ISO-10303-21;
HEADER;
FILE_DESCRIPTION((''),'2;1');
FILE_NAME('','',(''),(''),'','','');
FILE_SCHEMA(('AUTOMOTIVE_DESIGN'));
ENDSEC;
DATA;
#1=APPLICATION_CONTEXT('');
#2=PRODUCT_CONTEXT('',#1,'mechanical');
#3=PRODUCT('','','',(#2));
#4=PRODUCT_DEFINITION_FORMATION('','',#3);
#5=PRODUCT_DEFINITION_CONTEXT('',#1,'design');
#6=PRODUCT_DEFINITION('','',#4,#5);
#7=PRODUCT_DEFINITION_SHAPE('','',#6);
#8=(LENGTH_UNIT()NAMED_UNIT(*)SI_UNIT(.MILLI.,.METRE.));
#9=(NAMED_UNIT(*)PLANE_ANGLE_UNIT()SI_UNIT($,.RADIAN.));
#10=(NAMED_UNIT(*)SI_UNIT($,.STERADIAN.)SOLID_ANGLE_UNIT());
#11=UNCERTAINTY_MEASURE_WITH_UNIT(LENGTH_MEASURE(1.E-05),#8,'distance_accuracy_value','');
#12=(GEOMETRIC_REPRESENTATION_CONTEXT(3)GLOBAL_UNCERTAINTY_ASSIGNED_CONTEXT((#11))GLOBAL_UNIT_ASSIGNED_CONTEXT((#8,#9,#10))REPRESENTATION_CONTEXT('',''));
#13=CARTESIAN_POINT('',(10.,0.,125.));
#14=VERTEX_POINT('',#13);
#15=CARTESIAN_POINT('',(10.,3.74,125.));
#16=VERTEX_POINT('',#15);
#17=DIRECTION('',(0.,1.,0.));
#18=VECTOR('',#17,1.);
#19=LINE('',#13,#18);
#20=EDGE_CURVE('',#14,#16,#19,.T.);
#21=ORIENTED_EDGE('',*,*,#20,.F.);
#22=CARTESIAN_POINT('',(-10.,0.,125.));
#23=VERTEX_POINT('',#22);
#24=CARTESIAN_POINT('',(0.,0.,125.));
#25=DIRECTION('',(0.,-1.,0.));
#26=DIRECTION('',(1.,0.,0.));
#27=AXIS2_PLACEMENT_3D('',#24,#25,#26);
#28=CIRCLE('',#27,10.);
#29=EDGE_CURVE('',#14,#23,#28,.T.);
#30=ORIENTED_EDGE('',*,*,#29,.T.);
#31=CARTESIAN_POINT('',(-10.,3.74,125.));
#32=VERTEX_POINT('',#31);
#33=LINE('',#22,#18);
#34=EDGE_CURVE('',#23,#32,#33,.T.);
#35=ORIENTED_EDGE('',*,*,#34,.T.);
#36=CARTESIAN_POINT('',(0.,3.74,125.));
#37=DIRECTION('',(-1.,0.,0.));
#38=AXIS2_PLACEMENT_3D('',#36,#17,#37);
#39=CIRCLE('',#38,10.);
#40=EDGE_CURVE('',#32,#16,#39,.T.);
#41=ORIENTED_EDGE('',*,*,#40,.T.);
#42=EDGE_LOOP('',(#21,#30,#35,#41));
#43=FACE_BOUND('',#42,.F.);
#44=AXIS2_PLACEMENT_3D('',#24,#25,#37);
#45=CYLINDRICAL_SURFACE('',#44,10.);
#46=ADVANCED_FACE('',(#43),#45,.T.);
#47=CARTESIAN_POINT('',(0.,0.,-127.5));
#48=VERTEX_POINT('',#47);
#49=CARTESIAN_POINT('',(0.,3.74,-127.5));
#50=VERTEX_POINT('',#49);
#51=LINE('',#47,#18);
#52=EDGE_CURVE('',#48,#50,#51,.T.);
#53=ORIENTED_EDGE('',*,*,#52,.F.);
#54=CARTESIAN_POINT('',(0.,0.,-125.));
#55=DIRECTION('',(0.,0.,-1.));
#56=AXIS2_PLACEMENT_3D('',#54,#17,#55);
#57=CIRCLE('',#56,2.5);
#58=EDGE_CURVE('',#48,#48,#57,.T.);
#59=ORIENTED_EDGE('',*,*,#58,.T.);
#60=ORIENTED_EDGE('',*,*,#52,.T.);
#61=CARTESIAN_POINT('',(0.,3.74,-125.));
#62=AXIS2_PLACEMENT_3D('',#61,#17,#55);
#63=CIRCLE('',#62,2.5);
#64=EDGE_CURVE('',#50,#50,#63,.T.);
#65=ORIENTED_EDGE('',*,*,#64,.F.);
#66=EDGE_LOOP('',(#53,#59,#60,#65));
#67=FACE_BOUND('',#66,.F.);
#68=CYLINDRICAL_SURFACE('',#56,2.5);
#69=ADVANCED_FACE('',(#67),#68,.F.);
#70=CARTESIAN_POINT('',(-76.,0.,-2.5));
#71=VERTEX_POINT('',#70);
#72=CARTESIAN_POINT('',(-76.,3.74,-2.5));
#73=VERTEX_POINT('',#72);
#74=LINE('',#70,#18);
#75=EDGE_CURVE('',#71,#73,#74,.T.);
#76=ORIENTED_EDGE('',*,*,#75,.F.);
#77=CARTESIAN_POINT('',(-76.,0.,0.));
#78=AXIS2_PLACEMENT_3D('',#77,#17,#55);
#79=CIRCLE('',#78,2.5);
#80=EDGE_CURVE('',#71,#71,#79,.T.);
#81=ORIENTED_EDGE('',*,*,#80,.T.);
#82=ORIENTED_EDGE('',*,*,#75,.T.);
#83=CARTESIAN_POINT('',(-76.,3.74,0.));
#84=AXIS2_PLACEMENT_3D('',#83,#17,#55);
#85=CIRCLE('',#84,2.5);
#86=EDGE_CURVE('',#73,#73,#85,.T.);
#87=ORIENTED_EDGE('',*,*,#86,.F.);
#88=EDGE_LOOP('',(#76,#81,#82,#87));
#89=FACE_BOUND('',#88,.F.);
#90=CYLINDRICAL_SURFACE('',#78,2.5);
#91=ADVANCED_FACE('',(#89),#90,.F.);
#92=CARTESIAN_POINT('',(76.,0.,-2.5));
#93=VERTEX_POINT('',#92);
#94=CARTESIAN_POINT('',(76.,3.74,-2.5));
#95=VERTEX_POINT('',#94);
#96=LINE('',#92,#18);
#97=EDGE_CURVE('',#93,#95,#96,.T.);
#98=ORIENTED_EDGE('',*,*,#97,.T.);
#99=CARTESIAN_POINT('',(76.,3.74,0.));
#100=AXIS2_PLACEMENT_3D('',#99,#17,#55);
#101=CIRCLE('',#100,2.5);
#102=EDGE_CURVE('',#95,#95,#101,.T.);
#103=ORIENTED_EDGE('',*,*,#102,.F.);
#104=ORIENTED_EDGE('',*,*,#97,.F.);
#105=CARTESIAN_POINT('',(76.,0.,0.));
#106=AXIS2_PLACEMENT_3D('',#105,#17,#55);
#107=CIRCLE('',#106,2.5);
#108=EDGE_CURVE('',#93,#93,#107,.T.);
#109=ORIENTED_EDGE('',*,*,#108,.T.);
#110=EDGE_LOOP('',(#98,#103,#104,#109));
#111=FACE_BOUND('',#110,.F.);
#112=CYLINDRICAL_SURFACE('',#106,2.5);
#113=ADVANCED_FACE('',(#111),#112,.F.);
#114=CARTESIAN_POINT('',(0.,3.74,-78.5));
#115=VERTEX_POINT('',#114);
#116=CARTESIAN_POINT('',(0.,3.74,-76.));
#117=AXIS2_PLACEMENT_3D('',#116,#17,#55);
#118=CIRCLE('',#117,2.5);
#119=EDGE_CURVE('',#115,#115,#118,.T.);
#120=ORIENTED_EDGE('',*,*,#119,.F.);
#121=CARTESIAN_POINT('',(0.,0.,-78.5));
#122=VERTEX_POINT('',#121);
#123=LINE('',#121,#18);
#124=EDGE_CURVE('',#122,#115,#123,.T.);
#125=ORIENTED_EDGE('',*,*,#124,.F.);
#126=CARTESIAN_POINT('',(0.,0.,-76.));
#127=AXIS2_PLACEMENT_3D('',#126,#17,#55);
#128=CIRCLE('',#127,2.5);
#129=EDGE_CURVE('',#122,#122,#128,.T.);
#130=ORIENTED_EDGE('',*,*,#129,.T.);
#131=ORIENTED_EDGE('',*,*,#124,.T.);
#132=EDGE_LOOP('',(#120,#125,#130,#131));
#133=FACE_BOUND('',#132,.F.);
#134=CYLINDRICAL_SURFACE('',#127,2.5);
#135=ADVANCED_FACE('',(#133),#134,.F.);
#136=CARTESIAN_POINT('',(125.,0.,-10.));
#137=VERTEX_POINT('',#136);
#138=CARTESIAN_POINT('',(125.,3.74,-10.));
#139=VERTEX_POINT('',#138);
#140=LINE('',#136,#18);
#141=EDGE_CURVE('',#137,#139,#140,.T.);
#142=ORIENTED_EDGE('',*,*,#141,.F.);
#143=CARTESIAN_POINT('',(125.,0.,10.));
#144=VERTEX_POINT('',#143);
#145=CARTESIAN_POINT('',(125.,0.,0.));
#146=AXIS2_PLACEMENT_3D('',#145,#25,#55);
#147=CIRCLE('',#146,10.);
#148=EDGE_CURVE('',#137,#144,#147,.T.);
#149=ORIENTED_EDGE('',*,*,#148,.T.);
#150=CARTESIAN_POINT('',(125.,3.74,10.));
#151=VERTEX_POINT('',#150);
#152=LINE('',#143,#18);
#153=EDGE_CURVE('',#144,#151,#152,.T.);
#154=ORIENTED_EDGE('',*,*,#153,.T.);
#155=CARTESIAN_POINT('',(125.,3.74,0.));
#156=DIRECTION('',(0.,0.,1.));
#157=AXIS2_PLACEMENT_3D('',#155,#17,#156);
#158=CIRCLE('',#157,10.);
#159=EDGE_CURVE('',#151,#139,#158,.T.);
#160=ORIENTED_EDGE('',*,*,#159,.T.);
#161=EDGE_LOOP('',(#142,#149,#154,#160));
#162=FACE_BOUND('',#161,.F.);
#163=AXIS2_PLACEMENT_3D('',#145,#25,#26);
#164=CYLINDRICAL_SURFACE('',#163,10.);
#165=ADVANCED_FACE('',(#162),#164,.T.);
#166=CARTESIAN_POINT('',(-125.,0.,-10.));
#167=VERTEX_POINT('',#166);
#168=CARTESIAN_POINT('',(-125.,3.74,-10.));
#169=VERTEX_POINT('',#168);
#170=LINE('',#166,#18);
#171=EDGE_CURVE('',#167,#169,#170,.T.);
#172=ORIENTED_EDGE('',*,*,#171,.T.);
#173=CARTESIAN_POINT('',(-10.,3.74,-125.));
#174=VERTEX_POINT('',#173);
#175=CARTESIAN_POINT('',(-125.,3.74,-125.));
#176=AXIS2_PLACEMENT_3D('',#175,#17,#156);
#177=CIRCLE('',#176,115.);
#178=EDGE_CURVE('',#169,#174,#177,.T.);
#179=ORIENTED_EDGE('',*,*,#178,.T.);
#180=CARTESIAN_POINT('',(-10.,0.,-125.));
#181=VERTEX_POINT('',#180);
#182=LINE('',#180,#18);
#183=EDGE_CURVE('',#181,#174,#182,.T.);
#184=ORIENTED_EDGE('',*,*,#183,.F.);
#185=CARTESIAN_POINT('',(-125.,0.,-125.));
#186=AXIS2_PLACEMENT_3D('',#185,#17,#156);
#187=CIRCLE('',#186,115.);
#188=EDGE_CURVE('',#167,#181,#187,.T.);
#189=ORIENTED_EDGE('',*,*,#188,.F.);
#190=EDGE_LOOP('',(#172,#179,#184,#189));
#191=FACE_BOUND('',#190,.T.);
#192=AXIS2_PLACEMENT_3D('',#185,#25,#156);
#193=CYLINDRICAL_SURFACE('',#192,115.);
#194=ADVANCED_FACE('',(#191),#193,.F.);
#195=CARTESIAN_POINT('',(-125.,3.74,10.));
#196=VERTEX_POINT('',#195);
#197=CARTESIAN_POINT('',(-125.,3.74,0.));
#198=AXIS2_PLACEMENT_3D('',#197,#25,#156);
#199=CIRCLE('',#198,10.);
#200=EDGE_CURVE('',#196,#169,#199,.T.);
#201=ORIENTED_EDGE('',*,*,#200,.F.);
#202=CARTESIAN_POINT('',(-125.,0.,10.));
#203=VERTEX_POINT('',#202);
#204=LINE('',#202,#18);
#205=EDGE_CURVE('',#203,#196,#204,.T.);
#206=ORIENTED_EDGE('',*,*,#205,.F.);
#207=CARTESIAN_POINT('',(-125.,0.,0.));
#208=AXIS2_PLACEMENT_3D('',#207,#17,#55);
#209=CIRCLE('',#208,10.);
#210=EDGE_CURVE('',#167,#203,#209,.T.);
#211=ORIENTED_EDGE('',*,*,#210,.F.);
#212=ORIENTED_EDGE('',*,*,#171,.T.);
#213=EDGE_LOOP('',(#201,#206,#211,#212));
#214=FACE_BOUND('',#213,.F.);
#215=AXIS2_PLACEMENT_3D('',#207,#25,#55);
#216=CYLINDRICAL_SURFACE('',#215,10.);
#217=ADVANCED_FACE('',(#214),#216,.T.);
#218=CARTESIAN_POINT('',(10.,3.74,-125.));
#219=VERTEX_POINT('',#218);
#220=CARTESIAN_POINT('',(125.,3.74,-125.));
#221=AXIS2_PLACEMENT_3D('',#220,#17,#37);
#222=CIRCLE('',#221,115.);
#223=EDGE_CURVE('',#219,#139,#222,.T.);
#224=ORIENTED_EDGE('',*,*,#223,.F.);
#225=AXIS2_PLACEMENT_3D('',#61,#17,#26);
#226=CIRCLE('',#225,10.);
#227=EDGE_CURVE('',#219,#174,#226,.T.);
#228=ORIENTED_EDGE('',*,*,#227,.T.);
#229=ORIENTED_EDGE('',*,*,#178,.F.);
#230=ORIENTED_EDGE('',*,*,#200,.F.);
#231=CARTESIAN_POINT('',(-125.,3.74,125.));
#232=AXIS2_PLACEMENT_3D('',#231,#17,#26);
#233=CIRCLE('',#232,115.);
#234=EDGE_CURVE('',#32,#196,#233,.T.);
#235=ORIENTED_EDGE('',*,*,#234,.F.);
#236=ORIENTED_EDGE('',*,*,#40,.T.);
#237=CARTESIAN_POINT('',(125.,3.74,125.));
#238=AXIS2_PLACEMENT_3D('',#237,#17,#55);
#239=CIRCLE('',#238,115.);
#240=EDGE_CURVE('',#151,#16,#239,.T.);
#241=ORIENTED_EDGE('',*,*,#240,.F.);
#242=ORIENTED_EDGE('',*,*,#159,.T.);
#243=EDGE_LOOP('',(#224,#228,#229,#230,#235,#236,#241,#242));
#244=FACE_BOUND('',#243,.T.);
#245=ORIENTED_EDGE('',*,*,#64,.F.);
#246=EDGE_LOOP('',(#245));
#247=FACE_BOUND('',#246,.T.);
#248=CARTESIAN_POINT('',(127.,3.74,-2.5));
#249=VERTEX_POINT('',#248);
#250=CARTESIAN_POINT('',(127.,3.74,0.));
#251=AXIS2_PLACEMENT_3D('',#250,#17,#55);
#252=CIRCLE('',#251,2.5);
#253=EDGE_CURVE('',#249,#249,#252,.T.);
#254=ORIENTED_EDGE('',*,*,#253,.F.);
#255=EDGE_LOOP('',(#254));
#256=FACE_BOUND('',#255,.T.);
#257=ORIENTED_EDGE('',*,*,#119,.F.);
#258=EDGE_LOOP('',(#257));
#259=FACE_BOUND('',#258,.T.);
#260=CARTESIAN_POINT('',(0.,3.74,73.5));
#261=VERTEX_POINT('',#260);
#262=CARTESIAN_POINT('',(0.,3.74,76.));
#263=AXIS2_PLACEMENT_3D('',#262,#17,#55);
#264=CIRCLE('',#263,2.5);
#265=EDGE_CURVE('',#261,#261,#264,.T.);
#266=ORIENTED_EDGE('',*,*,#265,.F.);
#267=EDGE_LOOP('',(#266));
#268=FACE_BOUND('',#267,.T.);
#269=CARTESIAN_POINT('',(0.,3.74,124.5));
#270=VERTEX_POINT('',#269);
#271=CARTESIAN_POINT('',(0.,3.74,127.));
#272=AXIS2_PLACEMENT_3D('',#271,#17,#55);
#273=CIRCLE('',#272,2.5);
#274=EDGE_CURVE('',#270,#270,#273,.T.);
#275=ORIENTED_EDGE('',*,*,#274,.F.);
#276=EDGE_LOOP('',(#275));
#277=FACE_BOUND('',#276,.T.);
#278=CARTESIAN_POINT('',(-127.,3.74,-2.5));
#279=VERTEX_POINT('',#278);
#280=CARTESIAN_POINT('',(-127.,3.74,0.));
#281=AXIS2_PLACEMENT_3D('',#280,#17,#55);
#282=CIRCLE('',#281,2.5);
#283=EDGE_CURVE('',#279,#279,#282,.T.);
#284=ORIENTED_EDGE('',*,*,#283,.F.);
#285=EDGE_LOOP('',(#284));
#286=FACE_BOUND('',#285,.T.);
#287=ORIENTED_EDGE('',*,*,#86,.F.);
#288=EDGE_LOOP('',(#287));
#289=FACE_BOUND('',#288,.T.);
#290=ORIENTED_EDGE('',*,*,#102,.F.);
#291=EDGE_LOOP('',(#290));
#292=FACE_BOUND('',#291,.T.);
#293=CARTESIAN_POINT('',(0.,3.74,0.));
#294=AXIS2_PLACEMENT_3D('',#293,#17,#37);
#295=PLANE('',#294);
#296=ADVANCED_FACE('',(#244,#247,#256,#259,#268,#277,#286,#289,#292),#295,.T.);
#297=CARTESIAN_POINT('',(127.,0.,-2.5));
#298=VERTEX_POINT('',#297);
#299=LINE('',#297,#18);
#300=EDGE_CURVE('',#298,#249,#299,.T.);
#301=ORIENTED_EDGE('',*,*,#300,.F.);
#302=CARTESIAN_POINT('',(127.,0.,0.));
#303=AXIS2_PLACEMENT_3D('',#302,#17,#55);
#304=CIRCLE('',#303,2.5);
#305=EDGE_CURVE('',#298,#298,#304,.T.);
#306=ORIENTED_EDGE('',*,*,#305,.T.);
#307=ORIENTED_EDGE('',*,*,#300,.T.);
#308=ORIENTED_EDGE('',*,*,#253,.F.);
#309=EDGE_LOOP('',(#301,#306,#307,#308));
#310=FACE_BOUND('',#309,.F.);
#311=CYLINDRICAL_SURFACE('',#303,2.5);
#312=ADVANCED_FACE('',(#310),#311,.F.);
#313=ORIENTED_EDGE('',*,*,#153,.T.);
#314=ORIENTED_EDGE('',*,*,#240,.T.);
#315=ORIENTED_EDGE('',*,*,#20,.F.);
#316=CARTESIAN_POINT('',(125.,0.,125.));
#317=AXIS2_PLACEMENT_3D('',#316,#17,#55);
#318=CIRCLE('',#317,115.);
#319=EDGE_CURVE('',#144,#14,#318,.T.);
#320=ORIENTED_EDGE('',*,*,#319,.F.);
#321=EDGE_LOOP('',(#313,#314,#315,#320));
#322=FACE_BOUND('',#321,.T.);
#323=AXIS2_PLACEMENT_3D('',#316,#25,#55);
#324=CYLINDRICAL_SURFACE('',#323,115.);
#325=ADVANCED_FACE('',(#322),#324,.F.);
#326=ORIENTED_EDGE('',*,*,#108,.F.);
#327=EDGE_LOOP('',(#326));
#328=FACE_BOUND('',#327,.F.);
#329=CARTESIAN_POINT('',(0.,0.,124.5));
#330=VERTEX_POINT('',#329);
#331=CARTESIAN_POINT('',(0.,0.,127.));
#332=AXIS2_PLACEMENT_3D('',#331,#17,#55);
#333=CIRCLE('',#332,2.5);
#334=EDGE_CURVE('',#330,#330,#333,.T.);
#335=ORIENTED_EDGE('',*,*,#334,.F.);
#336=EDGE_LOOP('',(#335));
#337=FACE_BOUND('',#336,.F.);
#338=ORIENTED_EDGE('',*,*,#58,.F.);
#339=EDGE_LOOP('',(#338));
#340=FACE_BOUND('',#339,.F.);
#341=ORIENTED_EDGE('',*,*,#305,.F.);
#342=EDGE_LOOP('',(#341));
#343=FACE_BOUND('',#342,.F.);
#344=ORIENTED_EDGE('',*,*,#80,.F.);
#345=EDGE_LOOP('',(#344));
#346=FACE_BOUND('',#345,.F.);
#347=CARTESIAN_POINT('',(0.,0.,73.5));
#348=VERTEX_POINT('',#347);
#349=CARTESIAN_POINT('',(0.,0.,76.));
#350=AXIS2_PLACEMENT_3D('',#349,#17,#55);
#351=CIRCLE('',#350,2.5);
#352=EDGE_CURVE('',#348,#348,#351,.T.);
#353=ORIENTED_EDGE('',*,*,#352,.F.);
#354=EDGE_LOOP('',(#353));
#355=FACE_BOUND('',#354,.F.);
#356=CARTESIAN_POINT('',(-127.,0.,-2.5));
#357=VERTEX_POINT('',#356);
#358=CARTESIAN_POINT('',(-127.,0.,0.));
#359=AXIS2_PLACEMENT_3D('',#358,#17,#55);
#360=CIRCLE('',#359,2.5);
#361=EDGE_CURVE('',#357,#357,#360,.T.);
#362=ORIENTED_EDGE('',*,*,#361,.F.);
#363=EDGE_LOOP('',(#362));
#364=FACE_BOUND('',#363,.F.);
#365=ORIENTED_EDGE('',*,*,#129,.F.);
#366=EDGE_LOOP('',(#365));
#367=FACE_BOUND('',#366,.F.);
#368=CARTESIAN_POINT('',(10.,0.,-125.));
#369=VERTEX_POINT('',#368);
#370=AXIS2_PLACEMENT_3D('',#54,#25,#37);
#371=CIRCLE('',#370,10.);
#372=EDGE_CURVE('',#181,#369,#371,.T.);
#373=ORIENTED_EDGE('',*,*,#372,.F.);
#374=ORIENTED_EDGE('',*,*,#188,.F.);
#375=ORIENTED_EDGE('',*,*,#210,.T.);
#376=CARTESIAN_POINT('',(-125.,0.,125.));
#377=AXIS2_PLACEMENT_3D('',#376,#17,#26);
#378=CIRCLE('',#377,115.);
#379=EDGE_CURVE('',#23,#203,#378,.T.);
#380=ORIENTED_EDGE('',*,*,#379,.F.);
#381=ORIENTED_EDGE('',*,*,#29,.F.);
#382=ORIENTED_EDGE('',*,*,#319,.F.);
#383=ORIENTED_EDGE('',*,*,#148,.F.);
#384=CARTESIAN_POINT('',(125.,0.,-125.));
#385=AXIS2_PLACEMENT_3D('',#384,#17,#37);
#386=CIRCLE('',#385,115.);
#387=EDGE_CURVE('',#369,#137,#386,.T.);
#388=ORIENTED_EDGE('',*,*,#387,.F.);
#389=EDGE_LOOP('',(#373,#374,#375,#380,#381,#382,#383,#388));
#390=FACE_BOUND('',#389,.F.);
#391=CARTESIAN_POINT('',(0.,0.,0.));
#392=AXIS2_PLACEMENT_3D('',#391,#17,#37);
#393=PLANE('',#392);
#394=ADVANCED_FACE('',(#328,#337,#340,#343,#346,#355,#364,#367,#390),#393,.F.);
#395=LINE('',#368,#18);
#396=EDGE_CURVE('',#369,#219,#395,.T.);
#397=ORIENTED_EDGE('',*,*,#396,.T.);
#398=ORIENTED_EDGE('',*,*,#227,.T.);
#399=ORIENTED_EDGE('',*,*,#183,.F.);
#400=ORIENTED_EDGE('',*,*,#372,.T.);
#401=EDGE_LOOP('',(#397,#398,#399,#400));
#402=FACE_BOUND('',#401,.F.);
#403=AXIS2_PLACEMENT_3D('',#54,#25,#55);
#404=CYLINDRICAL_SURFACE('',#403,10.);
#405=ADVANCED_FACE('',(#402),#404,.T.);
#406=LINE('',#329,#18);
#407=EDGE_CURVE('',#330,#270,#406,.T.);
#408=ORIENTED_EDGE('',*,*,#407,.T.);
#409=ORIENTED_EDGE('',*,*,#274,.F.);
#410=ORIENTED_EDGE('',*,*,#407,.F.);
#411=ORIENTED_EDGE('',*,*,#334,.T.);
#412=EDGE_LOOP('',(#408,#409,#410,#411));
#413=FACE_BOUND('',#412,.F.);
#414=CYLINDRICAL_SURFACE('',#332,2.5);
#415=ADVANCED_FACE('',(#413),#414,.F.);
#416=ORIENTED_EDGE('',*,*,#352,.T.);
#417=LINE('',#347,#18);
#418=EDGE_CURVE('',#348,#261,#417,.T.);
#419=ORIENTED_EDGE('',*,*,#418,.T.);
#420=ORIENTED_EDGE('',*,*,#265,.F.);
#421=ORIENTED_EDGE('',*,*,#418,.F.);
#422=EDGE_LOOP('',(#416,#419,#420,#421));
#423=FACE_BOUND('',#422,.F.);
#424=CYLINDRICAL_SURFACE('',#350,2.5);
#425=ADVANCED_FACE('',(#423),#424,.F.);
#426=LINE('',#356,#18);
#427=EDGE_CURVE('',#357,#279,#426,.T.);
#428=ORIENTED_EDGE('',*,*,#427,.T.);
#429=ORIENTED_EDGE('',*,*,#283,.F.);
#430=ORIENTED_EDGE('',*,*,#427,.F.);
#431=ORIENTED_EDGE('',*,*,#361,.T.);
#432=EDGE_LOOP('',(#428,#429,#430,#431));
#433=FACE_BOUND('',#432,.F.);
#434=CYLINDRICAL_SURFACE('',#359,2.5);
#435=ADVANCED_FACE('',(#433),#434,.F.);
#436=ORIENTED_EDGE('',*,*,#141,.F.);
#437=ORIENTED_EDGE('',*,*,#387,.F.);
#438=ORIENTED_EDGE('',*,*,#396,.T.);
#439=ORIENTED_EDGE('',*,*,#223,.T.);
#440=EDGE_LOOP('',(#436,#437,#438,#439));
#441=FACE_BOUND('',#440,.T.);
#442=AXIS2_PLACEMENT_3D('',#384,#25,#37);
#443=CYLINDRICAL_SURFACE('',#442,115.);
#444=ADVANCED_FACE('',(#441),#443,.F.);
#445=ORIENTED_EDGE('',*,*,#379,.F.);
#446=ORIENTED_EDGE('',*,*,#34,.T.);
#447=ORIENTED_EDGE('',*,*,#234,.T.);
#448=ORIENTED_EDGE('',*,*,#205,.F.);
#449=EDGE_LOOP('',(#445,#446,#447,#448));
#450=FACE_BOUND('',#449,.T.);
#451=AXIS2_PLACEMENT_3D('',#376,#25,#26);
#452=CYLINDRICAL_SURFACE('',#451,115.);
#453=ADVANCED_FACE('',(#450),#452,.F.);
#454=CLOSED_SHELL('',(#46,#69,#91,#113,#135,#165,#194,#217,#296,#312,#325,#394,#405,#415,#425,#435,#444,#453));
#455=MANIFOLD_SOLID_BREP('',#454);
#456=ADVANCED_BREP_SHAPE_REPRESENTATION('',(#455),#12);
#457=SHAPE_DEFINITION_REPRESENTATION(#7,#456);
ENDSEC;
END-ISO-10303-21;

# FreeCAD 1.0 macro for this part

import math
import FreeCAD as App
import Part
import Sketcher

V = App.Vector

doc = App.newDocument("Part")
body = doc.addObject("PartDesign::Body", "Body")

sketch1 = body.newObject("Sketcher::SketchObject", "Sketch")
sketch1.AttachmentSupport = (doc.getObject("XZ_Plane"), [""])
sketch1.MapMode = "FlatFace"
sketch1.addGeometry([
    Part.ArcOfCircle(Part.Circle(V(-125, 0, 0), V(0, 0, 1), 10), math.radians(90), math.radians(270)),
    Part.ArcOfCircle(Part.Circle(V(-125, 125, 0), V(0, 0, 1), 115), math.radians(-90), math.radians(0)),
    Part.ArcOfCircle(Part.Circle(V(0, 125, 0), V(0, 0, 1), 10), math.radians(0), math.radians(180)),
    Part.ArcOfCircle(Part.Circle(V(125, 125, 0), V(0, 0, 1), 115), math.radians(180), math.radians(270)),
    Part.ArcOfCircle(Part.Circle(V(125, 0, 0), V(0, 0, 1), 10), math.radians(-90), math.radians(90)),
    Part.ArcOfCircle(Part.Circle(V(125, -125, 0), V(0, 0, 1), 115), math.radians(90), math.radians(180)),
    Part.ArcOfCircle(Part.Circle(V(0, -125, 0), V(0, 0, 1), 10), math.radians(180), math.radians(360)),
    Part.ArcOfCircle(Part.Circle(V(-125, -125, 0), V(0, 0, 1), 115), math.radians(0), math.radians(90)),
], False)
sketch1.addConstraint([
    Sketcher.Constraint("Tangent", 0, 1, 1, 1),
    Sketcher.Constraint("Tangent", 1, 2, 2, 2),
    Sketcher.Constraint("Tangent", 2, 1, 3, 1),
    Sketcher.Constraint("Tangent", 3, 2, 4, 2),
    Sketcher.Constraint("Tangent", 4, 1, 5, 1),
    Sketcher.Constraint("Tangent", 5, 2, 6, 2),
    Sketcher.Constraint("Tangent", 6, 1, 7, 1),
    Sketcher.Constraint("Tangent", 7, 2, 0, 2),
    Sketcher.Constraint("Equal", 0, 2),
    Sketcher.Constraint("Equal", 1, 3),
    Sketcher.Constraint("Equal", 2, 4),
    Sketcher.Constraint("Equal", 3, 5),
    Sketcher.Constraint("Equal", 4, 6),
    Sketcher.Constraint("Equal", 5, 7),
    Sketcher.Constraint("Symmetric", 0, 3, 4, 3, -1, 1),
    Sketcher.Constraint("Symmetric", 2, 3, 6, 3, -1, 1),
    Sketcher.Constraint("Symmetric", 1, 3, 3, 3, -2),
    Sketcher.Constraint("Horizontal", 1, 3, 2, 3),
    Sketcher.Constraint("Vertical", 0, 3, 1, 3),
    Sketcher.Constraint("Radius", 0, 10.0),
    Sketcher.Constraint("Radius", 1, 115.0),
])
pad1 = body.newObject("PartDesign::Pad", "Pad")
pad1.Profile = sketch1
pad1.Length = 3.74
pad1.Reversed = True

sketch2 = body.newObject("Sketcher::SketchObject", "Sketch001")
sketch2.AttachmentSupport = (doc.getObject("XZ_Plane"), [""])
sketch2.MapMode = "FlatFace"
sketch2.addGeometry([
    Part.Circle(V(0, 127, 0), V(0, 0, 1), 2.5),
    Part.Circle(V(0, 76, 0), V(0, 0, 1), 2.5),
    Part.Circle(V(-127, 0, 0), V(0, 0, 1), 2.5),
    Part.Circle(V(-76, 0, 0), V(0, 0, 1), 2.5),
    Part.Circle(V(0, -76, 0), V(0, 0, 1), 2.5),
    Part.Circle(V(0, -125, 0), V(0, 0, 1), 2.5),
    Part.Circle(V(76, 0, 0), V(0, 0, 1), 2.5),
    Part.Circle(V(127, 0, 0), V(0, 0, 1), 2.5),
], False)
sketch2.addConstraint([
    Sketcher.Constraint("Equal", 0, 1),
    Sketcher.Constraint("Equal", 1, 2),
    Sketcher.Constraint("Equal", 2, 3),
    Sketcher.Constraint("Equal", 3, 4),
    Sketcher.Constraint("Equal", 4, 5),
    Sketcher.Constraint("Equal", 5, 6),
    Sketcher.Constraint("Equal", 6, 7),
    Sketcher.Constraint("Symmetric", 1, 3, 4, 3, -1, 1),
    Sketcher.Constraint("Symmetric", 3, 3, 6, 3, -1, 1),
    Sketcher.Constraint("Symmetric", 2, 3, 7, 3, -1, 1),
    Sketcher.Constraint("PointOnObject", 0, 3, -2),
    Sketcher.Constraint("PointOnObject", 1, 3, -2),
    Sketcher.Constraint("PointOnObject", 2, 3, -1),
    Sketcher.Constraint("PointOnObject", 3, 3, -1),
    Sketcher.Constraint("PointOnObject", 5, 3, -2),
    Sketcher.Constraint("Diameter", 0, 5.0),
    Sketcher.Constraint("DistanceY", -1, 1, 0, 3, 127.0),
    Sketcher.Constraint("DistanceY", -1, 1, 1, 3, 76.0),
    Sketcher.Constraint("DistanceX", 2, 3, -1, 1, 127.0),
    Sketcher.Constraint("DistanceX", 3, 3, -1, 1, 76.0),
    Sketcher.Constraint("DistanceY", 5, 3, -1, 1, 125.0),
])
doc.recompute()
hole = body.newObject("PartDesign::Hole", "Hole")
hole.Profile = sketch2
hole.ThreadType = "None"
hole.Diameter = 5
hole.DepthType = "Dimension"
hole.Depth = 8
hole.DrillPoint = "Angled"
hole.DrillPointAngle = 118

doc.recompute()
